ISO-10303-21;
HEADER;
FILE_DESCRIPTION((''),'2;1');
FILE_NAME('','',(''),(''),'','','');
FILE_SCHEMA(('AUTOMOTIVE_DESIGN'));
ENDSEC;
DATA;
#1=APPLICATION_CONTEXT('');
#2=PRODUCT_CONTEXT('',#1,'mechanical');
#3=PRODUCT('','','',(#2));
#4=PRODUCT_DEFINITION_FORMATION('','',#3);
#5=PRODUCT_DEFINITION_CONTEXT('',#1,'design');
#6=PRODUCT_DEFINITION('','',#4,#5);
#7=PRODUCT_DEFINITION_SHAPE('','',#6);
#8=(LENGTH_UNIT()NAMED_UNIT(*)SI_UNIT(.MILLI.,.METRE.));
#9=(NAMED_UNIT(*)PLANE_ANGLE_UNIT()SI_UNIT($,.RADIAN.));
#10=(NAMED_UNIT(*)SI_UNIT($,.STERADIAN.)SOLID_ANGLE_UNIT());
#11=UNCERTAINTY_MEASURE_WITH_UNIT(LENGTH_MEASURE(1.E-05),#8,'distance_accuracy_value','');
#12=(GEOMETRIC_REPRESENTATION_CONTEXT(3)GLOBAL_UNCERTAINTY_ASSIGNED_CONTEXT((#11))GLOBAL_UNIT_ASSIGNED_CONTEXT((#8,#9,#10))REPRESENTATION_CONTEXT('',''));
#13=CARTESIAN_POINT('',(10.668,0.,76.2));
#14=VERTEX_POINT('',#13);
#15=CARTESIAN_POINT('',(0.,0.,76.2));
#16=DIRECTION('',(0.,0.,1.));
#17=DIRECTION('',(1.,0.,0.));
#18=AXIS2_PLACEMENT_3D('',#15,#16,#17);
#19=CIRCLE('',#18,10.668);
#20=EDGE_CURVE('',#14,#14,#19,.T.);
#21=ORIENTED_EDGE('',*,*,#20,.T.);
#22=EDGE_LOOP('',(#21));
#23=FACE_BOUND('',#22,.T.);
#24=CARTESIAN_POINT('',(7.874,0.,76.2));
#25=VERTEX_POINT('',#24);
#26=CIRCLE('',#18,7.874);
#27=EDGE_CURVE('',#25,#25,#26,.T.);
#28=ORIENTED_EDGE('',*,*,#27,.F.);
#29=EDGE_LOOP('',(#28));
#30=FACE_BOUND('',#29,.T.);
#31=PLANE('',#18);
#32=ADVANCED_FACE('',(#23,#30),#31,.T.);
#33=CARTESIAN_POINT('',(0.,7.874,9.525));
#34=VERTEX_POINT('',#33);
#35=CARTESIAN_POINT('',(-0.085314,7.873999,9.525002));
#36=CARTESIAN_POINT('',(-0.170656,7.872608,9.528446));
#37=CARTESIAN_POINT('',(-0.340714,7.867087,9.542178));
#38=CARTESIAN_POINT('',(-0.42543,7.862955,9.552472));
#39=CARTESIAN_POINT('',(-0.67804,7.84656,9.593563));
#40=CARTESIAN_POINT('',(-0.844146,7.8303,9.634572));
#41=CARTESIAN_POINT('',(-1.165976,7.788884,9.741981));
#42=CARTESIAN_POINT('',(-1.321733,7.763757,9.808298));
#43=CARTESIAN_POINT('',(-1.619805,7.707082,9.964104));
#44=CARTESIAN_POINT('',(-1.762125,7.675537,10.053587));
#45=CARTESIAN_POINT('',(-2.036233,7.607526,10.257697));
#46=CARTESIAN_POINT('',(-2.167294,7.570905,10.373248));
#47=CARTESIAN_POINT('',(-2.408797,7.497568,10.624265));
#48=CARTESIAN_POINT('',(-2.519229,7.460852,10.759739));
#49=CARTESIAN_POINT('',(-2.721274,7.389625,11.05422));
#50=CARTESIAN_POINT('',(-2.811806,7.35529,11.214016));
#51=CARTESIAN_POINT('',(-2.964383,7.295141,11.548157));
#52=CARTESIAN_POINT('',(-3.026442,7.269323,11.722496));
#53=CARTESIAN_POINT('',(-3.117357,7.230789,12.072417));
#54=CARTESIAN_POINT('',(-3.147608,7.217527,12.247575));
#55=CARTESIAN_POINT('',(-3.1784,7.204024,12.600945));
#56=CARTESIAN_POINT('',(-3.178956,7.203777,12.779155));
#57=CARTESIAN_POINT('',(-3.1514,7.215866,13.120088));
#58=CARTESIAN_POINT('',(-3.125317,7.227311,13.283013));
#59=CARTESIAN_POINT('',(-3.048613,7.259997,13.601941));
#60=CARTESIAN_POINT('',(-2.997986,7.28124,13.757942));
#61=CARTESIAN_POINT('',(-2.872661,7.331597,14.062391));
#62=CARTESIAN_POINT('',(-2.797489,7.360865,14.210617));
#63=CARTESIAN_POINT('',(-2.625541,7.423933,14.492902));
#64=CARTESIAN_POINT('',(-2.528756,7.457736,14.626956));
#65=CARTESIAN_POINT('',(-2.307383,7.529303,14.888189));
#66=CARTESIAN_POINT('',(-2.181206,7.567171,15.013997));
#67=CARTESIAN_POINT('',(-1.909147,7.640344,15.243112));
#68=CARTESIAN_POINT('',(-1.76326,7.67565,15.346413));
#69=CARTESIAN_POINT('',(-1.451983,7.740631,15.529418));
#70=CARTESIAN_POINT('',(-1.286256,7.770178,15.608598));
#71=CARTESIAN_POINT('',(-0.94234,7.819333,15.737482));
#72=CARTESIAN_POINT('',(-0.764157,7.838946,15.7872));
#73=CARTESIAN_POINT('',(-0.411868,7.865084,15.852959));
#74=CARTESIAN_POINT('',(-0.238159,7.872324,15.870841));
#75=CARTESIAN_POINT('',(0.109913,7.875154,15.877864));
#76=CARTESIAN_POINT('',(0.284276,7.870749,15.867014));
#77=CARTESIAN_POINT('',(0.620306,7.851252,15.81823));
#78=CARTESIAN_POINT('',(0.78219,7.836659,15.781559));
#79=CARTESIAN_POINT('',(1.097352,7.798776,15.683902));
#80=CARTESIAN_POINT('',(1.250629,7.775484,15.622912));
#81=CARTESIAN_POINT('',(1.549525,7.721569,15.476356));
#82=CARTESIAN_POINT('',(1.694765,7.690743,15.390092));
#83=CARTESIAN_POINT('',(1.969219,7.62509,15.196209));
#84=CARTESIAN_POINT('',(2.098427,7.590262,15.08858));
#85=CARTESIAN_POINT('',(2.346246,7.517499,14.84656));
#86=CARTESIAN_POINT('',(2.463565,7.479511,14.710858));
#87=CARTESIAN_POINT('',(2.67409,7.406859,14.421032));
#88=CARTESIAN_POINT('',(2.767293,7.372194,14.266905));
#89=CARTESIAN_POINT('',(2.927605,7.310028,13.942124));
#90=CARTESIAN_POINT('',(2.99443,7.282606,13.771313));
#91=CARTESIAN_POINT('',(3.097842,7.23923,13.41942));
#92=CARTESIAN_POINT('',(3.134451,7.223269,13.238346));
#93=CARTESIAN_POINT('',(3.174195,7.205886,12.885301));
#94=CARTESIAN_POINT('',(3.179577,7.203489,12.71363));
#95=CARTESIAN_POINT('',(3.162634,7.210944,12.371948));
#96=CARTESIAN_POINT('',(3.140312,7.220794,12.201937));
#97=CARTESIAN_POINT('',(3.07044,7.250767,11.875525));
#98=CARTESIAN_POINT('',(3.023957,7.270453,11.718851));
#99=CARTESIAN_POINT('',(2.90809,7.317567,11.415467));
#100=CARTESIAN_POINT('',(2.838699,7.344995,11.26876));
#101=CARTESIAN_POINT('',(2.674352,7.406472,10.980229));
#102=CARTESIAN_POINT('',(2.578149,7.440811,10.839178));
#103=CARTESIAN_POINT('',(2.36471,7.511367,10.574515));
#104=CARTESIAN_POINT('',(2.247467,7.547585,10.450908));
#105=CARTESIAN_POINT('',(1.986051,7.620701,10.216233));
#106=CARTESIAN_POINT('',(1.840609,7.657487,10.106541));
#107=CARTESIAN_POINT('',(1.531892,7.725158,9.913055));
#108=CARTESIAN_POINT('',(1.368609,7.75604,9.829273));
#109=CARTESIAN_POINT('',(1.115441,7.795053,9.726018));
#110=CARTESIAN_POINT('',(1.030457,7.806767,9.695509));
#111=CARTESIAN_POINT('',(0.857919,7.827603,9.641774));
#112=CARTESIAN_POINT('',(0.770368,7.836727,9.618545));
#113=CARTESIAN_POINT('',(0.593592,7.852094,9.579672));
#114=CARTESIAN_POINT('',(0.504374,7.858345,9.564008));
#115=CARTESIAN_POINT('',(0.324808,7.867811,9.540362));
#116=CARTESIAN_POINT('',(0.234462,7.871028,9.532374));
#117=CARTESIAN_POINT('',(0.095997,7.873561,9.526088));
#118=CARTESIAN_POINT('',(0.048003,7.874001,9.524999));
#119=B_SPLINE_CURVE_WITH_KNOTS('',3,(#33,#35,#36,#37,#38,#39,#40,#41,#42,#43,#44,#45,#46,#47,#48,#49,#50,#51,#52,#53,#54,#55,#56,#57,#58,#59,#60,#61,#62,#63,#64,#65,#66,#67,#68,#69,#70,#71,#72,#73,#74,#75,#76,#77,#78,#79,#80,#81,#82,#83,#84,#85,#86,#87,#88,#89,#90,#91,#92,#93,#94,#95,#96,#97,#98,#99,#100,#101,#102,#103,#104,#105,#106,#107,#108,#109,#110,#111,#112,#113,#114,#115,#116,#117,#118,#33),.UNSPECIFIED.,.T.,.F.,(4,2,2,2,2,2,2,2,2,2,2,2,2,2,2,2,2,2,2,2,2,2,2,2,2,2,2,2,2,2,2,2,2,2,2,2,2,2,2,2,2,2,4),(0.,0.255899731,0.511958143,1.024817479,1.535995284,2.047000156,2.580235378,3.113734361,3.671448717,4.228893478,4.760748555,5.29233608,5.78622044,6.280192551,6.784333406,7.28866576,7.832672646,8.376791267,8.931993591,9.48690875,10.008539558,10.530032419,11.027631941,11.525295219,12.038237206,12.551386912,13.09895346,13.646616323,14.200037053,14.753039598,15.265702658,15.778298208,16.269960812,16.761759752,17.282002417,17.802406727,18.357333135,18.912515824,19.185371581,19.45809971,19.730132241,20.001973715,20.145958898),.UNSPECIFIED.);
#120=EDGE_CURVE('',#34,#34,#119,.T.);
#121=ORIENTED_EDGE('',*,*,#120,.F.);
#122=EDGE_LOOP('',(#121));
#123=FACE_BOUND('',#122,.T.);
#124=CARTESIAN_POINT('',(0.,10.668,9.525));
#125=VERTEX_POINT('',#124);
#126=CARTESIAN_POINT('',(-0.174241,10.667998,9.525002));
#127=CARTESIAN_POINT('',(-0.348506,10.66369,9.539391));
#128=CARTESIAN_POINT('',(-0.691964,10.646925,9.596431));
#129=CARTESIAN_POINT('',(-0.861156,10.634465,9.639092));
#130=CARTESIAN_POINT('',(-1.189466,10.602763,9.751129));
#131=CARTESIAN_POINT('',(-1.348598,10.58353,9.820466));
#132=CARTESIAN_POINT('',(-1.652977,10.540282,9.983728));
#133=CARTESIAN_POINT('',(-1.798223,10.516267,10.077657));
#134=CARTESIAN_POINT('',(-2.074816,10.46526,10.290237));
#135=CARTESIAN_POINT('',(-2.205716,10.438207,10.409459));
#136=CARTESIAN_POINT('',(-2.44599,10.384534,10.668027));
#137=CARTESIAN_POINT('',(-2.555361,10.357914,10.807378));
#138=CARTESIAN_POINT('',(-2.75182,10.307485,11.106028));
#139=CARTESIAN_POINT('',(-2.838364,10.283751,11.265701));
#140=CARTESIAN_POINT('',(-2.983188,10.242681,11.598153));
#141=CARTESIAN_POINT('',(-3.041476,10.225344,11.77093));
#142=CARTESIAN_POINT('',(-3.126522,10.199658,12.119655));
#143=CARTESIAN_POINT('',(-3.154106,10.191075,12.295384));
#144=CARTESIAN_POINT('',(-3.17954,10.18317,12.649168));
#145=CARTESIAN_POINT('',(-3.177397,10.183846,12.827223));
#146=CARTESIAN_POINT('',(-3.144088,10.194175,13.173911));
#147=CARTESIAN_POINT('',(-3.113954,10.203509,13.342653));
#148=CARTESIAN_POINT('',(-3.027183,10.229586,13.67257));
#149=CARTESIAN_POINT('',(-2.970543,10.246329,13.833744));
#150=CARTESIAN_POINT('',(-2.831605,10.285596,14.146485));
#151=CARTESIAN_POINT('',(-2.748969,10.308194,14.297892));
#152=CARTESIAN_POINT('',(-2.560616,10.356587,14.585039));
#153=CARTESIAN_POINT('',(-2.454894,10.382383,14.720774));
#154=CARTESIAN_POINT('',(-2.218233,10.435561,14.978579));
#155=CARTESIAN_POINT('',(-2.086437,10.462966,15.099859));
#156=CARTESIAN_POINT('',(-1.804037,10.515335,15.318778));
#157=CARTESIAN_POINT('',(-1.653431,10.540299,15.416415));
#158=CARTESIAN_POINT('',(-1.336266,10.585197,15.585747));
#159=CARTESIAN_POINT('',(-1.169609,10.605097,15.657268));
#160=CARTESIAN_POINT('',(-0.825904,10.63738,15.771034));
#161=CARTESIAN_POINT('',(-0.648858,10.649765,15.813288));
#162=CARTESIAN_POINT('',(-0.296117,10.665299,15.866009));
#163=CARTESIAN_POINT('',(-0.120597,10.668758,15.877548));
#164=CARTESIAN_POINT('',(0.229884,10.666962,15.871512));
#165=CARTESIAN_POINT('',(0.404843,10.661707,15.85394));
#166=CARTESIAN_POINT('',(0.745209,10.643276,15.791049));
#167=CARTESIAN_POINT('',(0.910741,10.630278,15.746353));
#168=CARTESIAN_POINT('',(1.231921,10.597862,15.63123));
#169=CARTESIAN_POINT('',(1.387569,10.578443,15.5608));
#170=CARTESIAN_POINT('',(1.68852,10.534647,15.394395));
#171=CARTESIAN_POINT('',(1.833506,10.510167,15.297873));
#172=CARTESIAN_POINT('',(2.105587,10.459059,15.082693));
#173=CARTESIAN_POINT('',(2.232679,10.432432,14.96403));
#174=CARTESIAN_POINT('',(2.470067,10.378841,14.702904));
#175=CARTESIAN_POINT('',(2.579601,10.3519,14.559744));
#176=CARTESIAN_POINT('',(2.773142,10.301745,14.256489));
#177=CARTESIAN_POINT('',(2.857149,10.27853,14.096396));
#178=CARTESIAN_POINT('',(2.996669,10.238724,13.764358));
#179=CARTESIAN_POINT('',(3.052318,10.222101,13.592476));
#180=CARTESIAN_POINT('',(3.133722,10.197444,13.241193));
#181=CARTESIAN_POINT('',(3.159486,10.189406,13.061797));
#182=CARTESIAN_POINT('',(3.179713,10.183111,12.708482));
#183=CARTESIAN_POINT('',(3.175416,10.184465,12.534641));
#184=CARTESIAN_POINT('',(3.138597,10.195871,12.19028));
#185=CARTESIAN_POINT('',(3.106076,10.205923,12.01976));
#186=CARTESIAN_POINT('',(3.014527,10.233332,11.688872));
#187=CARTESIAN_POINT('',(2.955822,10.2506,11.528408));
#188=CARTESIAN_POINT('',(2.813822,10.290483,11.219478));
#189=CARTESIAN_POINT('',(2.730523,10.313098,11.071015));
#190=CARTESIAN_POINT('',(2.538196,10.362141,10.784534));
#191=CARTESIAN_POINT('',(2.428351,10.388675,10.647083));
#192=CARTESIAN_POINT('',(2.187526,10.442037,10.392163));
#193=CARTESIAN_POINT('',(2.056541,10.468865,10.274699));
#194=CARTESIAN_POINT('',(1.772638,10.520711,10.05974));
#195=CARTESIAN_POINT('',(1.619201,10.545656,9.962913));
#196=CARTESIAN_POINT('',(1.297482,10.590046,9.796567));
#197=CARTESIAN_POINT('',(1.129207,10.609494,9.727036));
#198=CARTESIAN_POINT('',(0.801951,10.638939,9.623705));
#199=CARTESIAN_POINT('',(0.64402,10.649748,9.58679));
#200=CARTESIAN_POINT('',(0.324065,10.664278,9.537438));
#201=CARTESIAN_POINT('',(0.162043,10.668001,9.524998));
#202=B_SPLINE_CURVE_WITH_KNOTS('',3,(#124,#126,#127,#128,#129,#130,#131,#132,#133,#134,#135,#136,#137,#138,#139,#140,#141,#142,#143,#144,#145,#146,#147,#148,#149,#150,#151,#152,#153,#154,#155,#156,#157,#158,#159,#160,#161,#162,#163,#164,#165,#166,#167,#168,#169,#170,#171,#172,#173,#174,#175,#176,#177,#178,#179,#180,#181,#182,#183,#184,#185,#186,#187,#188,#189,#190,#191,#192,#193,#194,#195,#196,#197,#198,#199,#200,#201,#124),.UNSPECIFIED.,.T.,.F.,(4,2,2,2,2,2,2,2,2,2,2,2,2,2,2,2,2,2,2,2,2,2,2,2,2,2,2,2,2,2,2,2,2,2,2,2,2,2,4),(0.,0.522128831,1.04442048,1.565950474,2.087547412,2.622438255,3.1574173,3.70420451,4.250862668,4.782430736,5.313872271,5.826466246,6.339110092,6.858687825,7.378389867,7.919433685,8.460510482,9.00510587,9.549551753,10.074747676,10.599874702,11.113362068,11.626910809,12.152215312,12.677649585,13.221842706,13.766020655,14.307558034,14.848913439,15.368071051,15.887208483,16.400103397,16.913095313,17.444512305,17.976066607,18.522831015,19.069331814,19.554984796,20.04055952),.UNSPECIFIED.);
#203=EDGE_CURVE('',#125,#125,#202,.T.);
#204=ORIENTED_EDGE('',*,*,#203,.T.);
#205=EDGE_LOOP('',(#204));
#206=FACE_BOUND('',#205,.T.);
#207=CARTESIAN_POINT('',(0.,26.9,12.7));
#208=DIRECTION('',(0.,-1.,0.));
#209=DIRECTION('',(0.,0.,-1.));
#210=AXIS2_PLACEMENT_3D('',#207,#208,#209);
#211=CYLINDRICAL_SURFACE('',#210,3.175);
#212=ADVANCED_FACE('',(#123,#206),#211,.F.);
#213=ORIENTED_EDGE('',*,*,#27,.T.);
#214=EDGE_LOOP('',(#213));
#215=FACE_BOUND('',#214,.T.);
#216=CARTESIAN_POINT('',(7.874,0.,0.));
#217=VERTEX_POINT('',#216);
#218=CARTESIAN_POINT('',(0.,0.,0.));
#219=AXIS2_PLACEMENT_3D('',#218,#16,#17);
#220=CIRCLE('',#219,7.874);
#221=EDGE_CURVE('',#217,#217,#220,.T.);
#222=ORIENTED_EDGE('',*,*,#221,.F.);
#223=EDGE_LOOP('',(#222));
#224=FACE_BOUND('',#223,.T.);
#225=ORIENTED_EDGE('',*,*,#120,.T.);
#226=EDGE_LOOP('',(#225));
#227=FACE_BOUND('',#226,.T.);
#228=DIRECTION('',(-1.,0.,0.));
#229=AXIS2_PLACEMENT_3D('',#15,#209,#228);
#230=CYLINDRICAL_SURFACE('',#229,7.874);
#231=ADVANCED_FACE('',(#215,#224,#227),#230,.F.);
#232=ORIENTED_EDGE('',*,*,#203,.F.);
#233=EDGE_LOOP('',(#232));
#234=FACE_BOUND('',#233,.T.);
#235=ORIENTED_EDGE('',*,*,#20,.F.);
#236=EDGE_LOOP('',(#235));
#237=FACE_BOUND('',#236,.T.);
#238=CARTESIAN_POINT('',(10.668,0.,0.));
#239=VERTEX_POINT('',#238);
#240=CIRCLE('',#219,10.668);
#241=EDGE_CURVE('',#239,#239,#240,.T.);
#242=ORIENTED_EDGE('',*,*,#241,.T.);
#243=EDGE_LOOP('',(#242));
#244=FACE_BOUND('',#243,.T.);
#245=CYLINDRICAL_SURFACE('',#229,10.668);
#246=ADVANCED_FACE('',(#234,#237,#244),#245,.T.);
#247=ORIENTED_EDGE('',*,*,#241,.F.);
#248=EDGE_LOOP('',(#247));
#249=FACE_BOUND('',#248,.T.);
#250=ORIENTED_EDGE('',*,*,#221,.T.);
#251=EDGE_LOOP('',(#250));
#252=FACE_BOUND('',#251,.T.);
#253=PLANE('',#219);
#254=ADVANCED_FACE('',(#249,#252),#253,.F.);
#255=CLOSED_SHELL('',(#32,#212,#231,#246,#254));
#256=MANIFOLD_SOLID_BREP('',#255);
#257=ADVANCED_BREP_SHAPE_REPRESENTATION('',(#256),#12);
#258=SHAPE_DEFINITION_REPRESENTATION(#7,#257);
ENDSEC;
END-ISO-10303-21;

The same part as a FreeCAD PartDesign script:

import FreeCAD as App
import Part
import Sketcher

V = App.Vector
Q = App.Units.Quantity

doc = App.newDocument("Part")
body = doc.addObject("PartDesign::Body", "Body")

# Sketch on XY plane
sketch1 = body.newObject("Sketcher::SketchObject", "Sketch")
sketch1.AttachmentSupport = (doc.getObject("XY_Plane"), [""])
sketch1.MapMode = "FlatFace"
sketch1.addGeometry([
    Part.Circle(V(0, 0, 0), V(0, 0, 1), 11),
    Part.Circle(V(0, 0, 0), V(0, 0, 1), 8),
], False)
sketch1.addConstraint([
    Sketcher.Constraint("Coincident", 0, 3, -1, 1),
    Sketcher.Constraint("Coincident", 1, 3, -1, 1),
    Sketcher.Constraint("Diameter", 0, Q("0.84 in")),
    Sketcher.Constraint("Diameter", 1, Q("0.62 in")),
])
pad1 = body.newObject("PartDesign::Pad", "Pad")
pad1.Profile = sketch1
pad1.Length = Q("3 in")

# Sketch on XZ plane
sketch2 = body.newObject("Sketcher::SketchObject", "Sketch001")
sketch2.AttachmentSupport = (doc.getObject("XZ_Plane"), [""])
sketch2.MapMode = "FlatFace"
sketch2.addGeometry(Part.Circle(V(0, 12.7, 0), V(0, 0, 1), 3.2), False)
sketch2.addConstraint([
    Sketcher.Constraint("PointOnObject", 0, 3, -2),
    Sketcher.Constraint("Diameter", 0, Q("0.25 in")),
    Sketcher.Constraint("DistanceY", -1, 1, 0, 3, Q("0.5 in")),
])
pocket1 = body.newObject("PartDesign::Pocket", "Pocket")
pocket1.Profile = sketch2
pocket1.Length = 26.9

doc.recompute()
